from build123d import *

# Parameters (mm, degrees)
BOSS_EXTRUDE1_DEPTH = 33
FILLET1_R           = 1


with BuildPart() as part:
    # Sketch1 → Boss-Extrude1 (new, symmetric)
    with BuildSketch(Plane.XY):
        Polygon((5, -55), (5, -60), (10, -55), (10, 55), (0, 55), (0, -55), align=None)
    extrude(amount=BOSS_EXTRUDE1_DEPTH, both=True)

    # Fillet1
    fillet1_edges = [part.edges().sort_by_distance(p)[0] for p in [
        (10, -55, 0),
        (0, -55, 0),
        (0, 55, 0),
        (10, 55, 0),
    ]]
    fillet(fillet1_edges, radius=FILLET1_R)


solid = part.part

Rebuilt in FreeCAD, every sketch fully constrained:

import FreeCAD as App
import Part
import Sketcher
from FreeCAD import Vector
Q = App.Units.Quantity


def edges_at(feature, points):
    """Names of the edges that pass closest to the given points."""
    edges = feature.Shape.Edges
    near = lambda p: min(range(len(edges)), key=lambda i: edges[i].distToShape(Part.Vertex(*p))[0])
    return sorted({f"Edge{near(p) + 1}" for p in points})

doc = App.newDocument("Part")
body = doc.addObject("PartDesign::Body", "Body")

sketch1 = doc.addObject("Sketcher::SketchObject", "Sketch")
body.addObject(sketch1)
sketch1.AttachmentSupport = (doc.XY_Plane, [""])
sketch1.MapMode = "FlatFace"
sketch1.addGeometry(Part.LineSegment(Vector(5, -55, 0), Vector(5, -60, 0)), False)
sketch1.addGeometry(Part.LineSegment(Vector(5, -60, 0), Vector(10, -55, 0)), False)
sketch1.addGeometry(Part.LineSegment(Vector(10, -55, 0), Vector(10, 55, 0)), False)
sketch1.addGeometry(Part.LineSegment(Vector(10, 55, 0), Vector(0, 55, 0)), False)
sketch1.addGeometry(Part.LineSegment(Vector(0, 55, 0), Vector(0, -55, 0)), False)
sketch1.addGeometry(Part.LineSegment(Vector(0, -55, 0), Vector(5, -55, 0)), False)
sketch1.addConstraint(Sketcher.Constraint("Coincident", 0, 2, 1, 1))
sketch1.addConstraint(Sketcher.Constraint("Coincident", 1, 2, 2, 1))
sketch1.addConstraint(Sketcher.Constraint("Coincident", 2, 2, 3, 1))
sketch1.addConstraint(Sketcher.Constraint("Coincident", 3, 2, 4, 1))
sketch1.addConstraint(Sketcher.Constraint("Coincident", 4, 2, 5, 1))
sketch1.addConstraint(Sketcher.Constraint("Coincident", 5, 2, 0, 1))
sketch1.addConstraint(Sketcher.Constraint("Vertical", 0))
sketch1.addConstraint(Sketcher.Constraint("Vertical", 2))
sketch1.addConstraint(Sketcher.Constraint("Horizontal", 3))
sketch1.addConstraint(Sketcher.Constraint("Vertical", 4))
sketch1.addConstraint(Sketcher.Constraint("Horizontal", 5))
sketch1.addConstraint(Sketcher.Constraint("Symmetric", 3, 2, 4, 2, -1, 1))
sketch1.addConstraint(Sketcher.Constraint("Horizontal", 1, 2, 4, 2))
sketch1.addConstraint(Sketcher.Constraint("Equal", 5, 0))
sketch1.addConstraint(Sketcher.Constraint("DistanceX", 3, 2, 3, 1, Q("10 mm")))
sketch1.addConstraint(Sketcher.Constraint("DistanceX", 5, 1, 5, 2, Q("5 mm")))
sketch1.addConstraint(Sketcher.Constraint("DistanceY", 2, 1, 2, 2, Q("110 mm")))
pad1 = doc.addObject("PartDesign::Pad", "Pad")
body.addObject(pad1)
pad1.Profile = sketch1
pad1.Length = 66
pad1.Midplane = True
doc.recompute()

fillet = doc.addObject("PartDesign::Fillet", "Fillet")
body.addObject(fillet)
fillet.Base = (pad1, edges_at(pad1, [
    (10, -55, 0),
    (0, -55, 0),
    (0, 55, 0),
    (10, 55, 0),
]))
fillet.Radius = 1

doc.recompute()
